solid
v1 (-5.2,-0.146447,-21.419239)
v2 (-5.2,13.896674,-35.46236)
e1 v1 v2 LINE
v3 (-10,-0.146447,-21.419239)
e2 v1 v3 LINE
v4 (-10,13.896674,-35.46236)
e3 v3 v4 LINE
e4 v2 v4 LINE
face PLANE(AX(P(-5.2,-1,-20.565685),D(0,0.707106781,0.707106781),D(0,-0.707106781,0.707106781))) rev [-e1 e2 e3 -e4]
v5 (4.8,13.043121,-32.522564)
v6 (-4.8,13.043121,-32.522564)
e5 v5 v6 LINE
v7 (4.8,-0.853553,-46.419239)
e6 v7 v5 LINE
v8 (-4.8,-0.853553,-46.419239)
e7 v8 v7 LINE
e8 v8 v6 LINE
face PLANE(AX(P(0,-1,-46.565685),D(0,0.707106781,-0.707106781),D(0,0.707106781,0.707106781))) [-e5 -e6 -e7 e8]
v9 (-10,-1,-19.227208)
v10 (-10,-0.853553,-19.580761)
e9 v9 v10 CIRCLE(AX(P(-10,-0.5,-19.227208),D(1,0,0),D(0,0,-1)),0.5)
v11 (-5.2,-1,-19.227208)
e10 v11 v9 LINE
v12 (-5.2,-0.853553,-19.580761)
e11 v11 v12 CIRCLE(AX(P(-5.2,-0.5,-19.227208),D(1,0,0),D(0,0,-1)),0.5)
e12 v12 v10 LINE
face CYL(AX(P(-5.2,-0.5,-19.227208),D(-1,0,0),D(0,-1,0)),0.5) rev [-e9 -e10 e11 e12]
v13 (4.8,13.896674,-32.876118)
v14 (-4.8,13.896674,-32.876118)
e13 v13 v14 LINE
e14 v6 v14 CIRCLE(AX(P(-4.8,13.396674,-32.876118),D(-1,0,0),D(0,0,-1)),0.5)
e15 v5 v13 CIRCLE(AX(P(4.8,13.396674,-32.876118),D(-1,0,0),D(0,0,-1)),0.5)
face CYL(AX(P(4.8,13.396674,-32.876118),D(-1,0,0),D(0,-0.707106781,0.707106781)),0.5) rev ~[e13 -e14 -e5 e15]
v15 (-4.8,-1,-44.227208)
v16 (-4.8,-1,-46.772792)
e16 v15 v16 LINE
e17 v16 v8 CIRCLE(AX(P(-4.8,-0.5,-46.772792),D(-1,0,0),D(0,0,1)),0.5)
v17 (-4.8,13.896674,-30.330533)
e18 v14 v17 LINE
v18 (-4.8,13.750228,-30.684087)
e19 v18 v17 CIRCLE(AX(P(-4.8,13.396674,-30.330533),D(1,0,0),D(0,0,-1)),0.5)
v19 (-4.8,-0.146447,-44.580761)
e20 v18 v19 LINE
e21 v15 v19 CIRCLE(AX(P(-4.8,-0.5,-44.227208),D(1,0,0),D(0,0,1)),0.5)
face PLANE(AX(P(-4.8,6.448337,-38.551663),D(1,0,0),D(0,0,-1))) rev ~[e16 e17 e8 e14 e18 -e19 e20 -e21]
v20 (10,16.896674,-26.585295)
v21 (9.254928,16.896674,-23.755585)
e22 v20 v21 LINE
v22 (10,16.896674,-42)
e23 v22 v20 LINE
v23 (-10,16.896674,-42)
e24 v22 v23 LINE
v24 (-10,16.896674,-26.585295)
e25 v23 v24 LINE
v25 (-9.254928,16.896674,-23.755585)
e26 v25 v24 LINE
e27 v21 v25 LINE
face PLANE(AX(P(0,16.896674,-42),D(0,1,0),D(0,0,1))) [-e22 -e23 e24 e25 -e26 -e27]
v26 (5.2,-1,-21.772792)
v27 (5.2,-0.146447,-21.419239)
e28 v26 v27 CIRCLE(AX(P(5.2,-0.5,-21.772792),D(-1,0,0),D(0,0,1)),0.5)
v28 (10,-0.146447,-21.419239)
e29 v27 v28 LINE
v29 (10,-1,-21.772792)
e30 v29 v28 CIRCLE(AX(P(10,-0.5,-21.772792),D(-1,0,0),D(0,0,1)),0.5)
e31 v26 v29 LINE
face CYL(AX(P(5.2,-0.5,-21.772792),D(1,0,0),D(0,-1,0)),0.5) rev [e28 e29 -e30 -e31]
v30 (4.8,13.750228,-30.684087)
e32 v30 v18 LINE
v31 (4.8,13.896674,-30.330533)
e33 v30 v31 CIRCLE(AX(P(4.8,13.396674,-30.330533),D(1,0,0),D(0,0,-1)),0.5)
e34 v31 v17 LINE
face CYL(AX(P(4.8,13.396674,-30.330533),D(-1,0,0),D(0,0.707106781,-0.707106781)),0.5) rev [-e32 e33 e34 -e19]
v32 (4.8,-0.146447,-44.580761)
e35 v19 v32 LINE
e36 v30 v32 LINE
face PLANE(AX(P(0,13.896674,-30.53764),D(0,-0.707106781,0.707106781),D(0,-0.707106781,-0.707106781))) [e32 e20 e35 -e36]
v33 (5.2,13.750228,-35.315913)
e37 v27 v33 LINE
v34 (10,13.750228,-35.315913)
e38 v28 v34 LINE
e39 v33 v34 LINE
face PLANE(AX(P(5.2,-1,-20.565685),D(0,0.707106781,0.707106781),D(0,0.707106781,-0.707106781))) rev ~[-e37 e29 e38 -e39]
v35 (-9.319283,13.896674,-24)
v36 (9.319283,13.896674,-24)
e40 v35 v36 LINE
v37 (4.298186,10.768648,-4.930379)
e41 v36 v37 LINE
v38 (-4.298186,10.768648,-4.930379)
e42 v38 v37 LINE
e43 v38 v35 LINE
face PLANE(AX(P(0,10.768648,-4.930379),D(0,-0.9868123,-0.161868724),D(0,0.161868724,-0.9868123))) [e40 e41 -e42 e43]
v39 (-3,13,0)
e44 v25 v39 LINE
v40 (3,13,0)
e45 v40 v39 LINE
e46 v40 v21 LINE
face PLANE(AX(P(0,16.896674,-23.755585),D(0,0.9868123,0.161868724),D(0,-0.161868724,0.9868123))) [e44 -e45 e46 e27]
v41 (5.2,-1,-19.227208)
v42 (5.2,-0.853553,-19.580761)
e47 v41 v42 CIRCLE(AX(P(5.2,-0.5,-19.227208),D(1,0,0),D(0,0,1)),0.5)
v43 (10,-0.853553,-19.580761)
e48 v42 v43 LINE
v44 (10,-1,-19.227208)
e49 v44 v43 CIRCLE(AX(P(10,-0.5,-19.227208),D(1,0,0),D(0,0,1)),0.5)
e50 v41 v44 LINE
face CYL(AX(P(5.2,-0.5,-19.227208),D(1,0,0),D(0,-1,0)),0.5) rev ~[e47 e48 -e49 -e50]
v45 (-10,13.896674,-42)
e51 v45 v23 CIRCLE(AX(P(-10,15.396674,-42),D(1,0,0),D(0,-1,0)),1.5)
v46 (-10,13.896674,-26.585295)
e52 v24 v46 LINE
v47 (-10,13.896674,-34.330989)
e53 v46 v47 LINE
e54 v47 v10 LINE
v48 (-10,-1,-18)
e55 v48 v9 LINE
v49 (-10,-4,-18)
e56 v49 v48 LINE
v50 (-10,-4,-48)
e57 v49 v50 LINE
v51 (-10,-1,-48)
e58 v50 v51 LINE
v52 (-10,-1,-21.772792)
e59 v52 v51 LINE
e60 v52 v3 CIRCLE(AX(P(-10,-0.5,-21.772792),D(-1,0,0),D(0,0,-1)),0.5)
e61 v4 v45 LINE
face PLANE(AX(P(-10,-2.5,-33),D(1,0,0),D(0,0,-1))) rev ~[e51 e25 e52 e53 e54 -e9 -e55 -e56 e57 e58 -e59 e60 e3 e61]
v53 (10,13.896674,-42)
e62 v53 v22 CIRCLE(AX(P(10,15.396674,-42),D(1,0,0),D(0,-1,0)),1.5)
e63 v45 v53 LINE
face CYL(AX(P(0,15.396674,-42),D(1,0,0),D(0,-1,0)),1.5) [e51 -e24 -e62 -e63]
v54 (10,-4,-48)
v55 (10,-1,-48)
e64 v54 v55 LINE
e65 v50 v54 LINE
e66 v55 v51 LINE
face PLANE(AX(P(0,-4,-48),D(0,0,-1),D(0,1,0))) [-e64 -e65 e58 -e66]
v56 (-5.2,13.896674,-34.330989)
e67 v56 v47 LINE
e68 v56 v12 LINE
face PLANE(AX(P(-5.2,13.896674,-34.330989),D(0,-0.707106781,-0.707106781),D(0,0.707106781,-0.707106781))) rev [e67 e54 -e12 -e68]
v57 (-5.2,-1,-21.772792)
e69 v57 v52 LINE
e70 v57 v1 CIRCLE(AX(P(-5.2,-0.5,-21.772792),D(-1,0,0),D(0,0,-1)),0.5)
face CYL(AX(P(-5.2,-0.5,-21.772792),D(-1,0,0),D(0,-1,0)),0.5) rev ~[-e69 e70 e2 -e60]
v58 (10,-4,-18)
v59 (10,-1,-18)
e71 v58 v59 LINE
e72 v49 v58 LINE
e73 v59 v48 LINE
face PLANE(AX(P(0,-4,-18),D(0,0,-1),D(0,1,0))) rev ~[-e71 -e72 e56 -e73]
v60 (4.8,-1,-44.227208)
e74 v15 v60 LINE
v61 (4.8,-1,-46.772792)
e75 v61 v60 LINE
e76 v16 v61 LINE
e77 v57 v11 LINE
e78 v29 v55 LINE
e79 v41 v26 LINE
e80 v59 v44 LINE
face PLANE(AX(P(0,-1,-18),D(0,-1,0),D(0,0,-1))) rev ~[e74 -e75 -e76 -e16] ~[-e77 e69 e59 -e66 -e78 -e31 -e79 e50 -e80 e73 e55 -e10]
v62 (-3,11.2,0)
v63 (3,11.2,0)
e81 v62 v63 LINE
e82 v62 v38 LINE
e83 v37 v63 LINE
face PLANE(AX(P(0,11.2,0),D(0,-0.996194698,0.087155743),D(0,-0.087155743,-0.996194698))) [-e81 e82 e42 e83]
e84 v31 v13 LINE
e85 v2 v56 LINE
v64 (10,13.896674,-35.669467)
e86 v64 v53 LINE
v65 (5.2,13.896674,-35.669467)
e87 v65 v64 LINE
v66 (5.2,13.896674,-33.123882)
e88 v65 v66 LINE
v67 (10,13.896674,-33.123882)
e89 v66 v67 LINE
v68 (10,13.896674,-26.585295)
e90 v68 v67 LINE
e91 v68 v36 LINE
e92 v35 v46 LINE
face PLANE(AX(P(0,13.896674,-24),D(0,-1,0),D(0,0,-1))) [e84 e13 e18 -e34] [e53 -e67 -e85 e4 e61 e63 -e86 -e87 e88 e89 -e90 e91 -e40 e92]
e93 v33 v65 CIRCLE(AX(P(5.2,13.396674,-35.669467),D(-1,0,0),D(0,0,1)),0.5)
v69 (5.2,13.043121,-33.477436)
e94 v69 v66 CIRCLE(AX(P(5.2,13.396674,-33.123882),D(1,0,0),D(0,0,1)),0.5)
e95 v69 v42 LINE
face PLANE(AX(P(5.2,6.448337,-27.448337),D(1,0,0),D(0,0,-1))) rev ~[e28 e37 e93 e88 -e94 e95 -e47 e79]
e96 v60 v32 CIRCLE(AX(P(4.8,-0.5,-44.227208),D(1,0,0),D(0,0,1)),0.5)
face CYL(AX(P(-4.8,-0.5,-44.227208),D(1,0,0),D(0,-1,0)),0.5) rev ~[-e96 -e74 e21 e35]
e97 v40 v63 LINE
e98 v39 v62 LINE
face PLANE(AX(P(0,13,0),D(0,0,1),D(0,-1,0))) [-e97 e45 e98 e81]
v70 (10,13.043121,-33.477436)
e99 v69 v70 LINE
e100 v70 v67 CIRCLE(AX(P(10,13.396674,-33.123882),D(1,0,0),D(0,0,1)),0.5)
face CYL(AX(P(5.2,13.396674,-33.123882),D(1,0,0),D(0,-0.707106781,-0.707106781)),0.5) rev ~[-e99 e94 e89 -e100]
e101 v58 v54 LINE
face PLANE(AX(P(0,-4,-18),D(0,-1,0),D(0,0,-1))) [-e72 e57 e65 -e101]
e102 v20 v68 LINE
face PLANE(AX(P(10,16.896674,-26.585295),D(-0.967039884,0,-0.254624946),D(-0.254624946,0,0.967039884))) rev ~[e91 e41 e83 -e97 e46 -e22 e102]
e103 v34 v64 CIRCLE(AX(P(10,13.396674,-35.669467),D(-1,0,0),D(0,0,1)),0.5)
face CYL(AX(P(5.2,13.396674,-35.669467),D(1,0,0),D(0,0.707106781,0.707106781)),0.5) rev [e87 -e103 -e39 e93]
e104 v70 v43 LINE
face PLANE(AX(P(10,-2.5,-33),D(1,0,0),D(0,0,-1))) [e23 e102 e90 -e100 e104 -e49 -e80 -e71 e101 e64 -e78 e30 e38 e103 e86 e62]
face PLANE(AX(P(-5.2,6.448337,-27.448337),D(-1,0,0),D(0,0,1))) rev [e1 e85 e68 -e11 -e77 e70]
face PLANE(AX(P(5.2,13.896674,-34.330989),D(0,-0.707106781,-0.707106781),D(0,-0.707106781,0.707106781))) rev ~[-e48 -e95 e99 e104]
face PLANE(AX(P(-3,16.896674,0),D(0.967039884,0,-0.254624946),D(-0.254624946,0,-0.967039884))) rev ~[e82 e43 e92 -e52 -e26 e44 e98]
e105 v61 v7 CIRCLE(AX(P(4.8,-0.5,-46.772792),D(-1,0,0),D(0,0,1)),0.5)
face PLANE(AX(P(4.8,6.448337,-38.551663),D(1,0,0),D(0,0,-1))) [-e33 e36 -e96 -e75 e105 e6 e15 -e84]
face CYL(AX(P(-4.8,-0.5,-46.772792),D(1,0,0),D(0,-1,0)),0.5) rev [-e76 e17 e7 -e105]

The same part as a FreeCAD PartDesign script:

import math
import FreeCAD as App
import Part
import Sketcher

V = App.Vector
Q = App.Units.Quantity


def edges_at(feature, points):
    """Names of the edges that pass closest to the given points."""
    edges = feature.Shape.Edges
    near = lambda p: min(range(len(edges)), key=lambda i: edges[i].distToShape(Part.Vertex(*p))[0])
    return sorted({f"Edge{near(p) + 1}" for p in points})

doc = App.newDocument("Part")
body = doc.addObject("PartDesign::Body", "Body")

# Sketch on YZ plane
sketch1 = body.newObject("Sketcher::SketchObject", "Sketch")
sketch1.AttachmentSupport = (doc.getObject("YZ_Plane"), [""])
sketch1.MapMode = "FlatFace"
sketch1.addGeometry(Part.LineSegment(V(13, 0, 0), V(11.2, 0, 0)), False)
sketch1.addGeometry(Part.LineSegment(V(11.2, 0, 0), V(10.8, -4.9, 0)), False)
sketch1.addGeometry(Part.LineSegment(V(10.8, -4.9, 0), V(13.9, -24, 0)), False)
sketch1.addGeometry(Part.LineSegment(V(13.9, -24, 0), V(13.9, -42, 0)), False)
sketch1.addGeometry(Part.ArcOfCircle(Part.Circle(V(15.4, -42, 0), V(0, 0, 1), 1.5), math.radians(180), math.radians(360)), False)
sketch1.addGeometry(Part.LineSegment(V(16.9, -42, 0), V(16.9, -23.8, 0)), False)
sketch1.addGeometry(Part.LineSegment(V(16.9, -23.8, 0), V(13, 0, 0)), False)
sketch1.addConstraint(Sketcher.Constraint("Coincident", 0, 2, 1, 1))
sketch1.addConstraint(Sketcher.Constraint("Coincident", 1, 2, 2, 1))
sketch1.addConstraint(Sketcher.Constraint("Coincident", 2, 2, 3, 1))
sketch1.addConstraint(Sketcher.Constraint("Tangent", 3, 2, 4, 1))
sketch1.addConstraint(Sketcher.Constraint("Tangent", 4, 2, 5, 1))
sketch1.addConstraint(Sketcher.Constraint("Coincident", 5, 2, 6, 1))
sketch1.addConstraint(Sketcher.Constraint("Coincident", 6, 2, 0, 1))
sketch1.addConstraint(Sketcher.Constraint("Horizontal", 0))
sketch1.addConstraint(Sketcher.Constraint("Vertical", 3))
sketch1.addConstraint(Sketcher.Constraint("Vertical", 5))
sketch1.addConstraint(Sketcher.Constraint("PointOnObject", 0, 2, -1))
sketch1.addConstraint(Sketcher.Constraint("Parallel", 2, 6))
sketch1.addConstraint(Sketcher.Constraint("Radius", 4, 1.5))
sketch1.addConstraint(Sketcher.Constraint("DistanceY", 3, 2, 3, 1, 18.0))
sketch1.addConstraint(Sketcher.Constraint("Angle", 1, Q("-95 deg")))
sketch1.addConstraint(Sketcher.Constraint("DistanceX", 0, 2, 0, 1, 1.8))
sketch1.addConstraint(Sketcher.Constraint("DistanceY", 4, 3, -1, 1, 42.0))
sketch1.addConstraint(Sketcher.Constraint("DistanceX", -1, 1, 6, 2, 13.0))
sketch1.addConstraint(Sketcher.Constraint("DistanceY", 5, 1, 5, 2, 18.244415))
sketch1.addConstraint(Sketcher.Constraint("DistanceY", 1, 2, -1, 1, 4.930379))
pad1 = body.newObject("PartDesign::Pad", "Pad")
pad1.Profile = sketch1
pad1.Length = 20
pad1.Midplane = True
body2 = doc.addObject("PartDesign::Body", "Body001")

# Sketch on YZ plane
sketch2 = body2.newObject("Sketcher::SketchObject", "Sketch001")
sketch2.AttachmentSupport = (doc.getObject("YZ_Plane001"), [""])
sketch2.MapMode = "FlatFace"
sketch2.addGeometry(Part.LineSegment(V(-1, -18, 0), V(-4, -18, 0)), False)
sketch2.addGeometry(Part.LineSegment(V(-4, -18, 0), V(-4, -48, 0)), False)
sketch2.addGeometry(Part.LineSegment(V(-4, -48, 0), V(-1, -48, 0)), False)
sketch2.addGeometry(Part.LineSegment(V(-1, -48, 0), V(-1, -18, 0)), False)
sketch2.addConstraint(Sketcher.Constraint("Coincident", 0, 2, 1, 1))
sketch2.addConstraint(Sketcher.Constraint("Coincident", 1, 2, 2, 1))
sketch2.addConstraint(Sketcher.Constraint("Coincident", 2, 2, 3, 1))
sketch2.addConstraint(Sketcher.Constraint("Coincident", 3, 2, 0, 1))
sketch2.addConstraint(Sketcher.Constraint("Horizontal", 0))
sketch2.addConstraint(Sketcher.Constraint("Vertical", 1))
sketch2.addConstraint(Sketcher.Constraint("Horizontal", 2))
sketch2.addConstraint(Sketcher.Constraint("Vertical", 3))
sketch2.addConstraint(Sketcher.Constraint("DistanceX", 0, 2, 0, 1, 3.0))
sketch2.addConstraint(Sketcher.Constraint("DistanceY", 1, 2, 1, 1, 30.0))
sketch2.addConstraint(Sketcher.Constraint("DistanceX", 0, 2, -1, 1, 4.0))
sketch2.addConstraint(Sketcher.Constraint("DistanceY", 0, 2, -1, 1, 18.0))
pad2 = body2.newObject("PartDesign::Pad", "Pad001")
pad2.Profile = sketch2
pad2.Length = 20
pad2.Midplane = True
body.AllowCompound = True
doc.recompute()

boolean = body.newObject("PartDesign::Boolean", "Boolean")
boolean.Type = "Fuse"
boolean.addObjects([body2])

# Sketch on YZ plane
sketch3 = body.newObject("Sketcher::SketchObject", "Sketch002")
sketch3.AttachmentSupport = (doc.getObject("YZ_Plane"), [""])
sketch3.MapMode = "FlatFace"
sketch3.addGeometry(Part.LineSegment(V(13.9, -30.5, 0), V(-1, -45.4, 0)), False)
sketch3.addGeometry(Part.LineSegment(V(-1, -45.4, 0), V(-1, -46.6, 0)), False)
sketch3.addGeometry(Part.LineSegment(V(-1, -46.6, 0), V(13.9, -31.7, 0)), False)
sketch3.addGeometry(Part.LineSegment(V(13.9, -31.7, 0), V(13.9, -30.5, 0)), False)
sketch3.addConstraint(Sketcher.Constraint("Coincident", 0, 2, 1, 1))
sketch3.addConstraint(Sketcher.Constraint("Coincident", 1, 2, 2, 1))
sketch3.addConstraint(Sketcher.Constraint("Coincident", 2, 2, 3, 1))
sketch3.addConstraint(Sketcher.Constraint("Coincident", 3, 2, 0, 1))
sketch3.addConstraint(Sketcher.Constraint("Vertical", 1))
sketch3.addConstraint(Sketcher.Constraint("Vertical", 3))
sketch3.addConstraint(Sketcher.Constraint("Parallel", 0, 2))
sketch3.addConstraint(Sketcher.Constraint("Angle", 0, Q("-135 deg")))
sketch3.addConstraint(Sketcher.Constraint("DistanceX", 0, 2, -1, 1, 1.0))
sketch3.addConstraint(Sketcher.Constraint("DistanceY", 1, 2, 1, 1, 1.131371))
sketch3.addConstraint(Sketcher.Constraint("Distance", 0, 21.067079))
sketch3.addConstraint(Sketcher.Constraint("DistanceY", 2, 2, -1, 1, 31.669011))
pad3 = body.newObject("PartDesign::Pad", "Pad002")
pad3.Profile = sketch3
pad3.Length = 9.6
pad3.Midplane = True

# Sketch on YZ plane
sketch4 = body.newObject("Sketcher::SketchObject", "Sketch003")
sketch4.AttachmentSupport = (doc.getObject("YZ_Plane"), [""])
sketch4.MapMode = "FlatFace"
sketch4.AttachmentOffset = App.Placement(V(0, 0, 5.2), App.Rotation())
sketch4.addGeometry(Part.LineSegment(V(-1, -19.4, 0), V(-1, -20.6, 0)), False)
sketch4.addGeometry(Part.LineSegment(V(-1, -20.6, 0), V(13.9, -35.5, 0)), False)
sketch4.addGeometry(Part.LineSegment(V(13.9, -35.5, 0), V(13.9, -34.3, 0)), False)
sketch4.addGeometry(Part.LineSegment(V(13.9, -34.3, 0), V(-1, -19.4, 0)), False)
sketch4.addConstraint(Sketcher.Constraint("Coincident", 0, 2, 1, 1))
sketch4.addConstraint(Sketcher.Constraint("Coincident", 1, 2, 2, 1))
sketch4.addConstraint(Sketcher.Constraint("Coincident", 2, 2, 3, 1))
sketch4.addConstraint(Sketcher.Constraint("Coincident", 3, 2, 0, 1))
sketch4.addConstraint(Sketcher.Constraint("Vertical", 0))
sketch4.addConstraint(Sketcher.Constraint("Vertical", 2))
sketch4.addConstraint(Sketcher.Constraint("Parallel", 1, 3))
sketch4.addConstraint(Sketcher.Constraint("Angle", 1, Q("-45 deg")))
sketch4.addConstraint(Sketcher.Constraint("DistanceX", 0, 2, -1, 1, 1.0))
sketch4.addConstraint(Sketcher.Constraint("DistanceY", 0, 2, 0, 1, 1.131371))
sketch4.addConstraint(Sketcher.Constraint("Distance", 1, 21.067079))
sketch4.addConstraint(Sketcher.Constraint("DistanceY", 1, 2, -1, 1, 35.46236))
pad4 = body.newObject("PartDesign::Pad", "Pad003")
pad4.Profile = sketch4
pad4.Length = 4.8
doc.recompute()

mirrored = body.newObject("PartDesign::Mirrored", "Mirrored")
mirrored.Originals = [pad4]
mirrored.MirrorPlane = (doc.getObject("YZ_Plane"), [""])
body.Tip = mirrored
doc.recompute()

fillet = body.newObject("PartDesign::Fillet", "Fillet")
fillet.Base = (mirrored, edges_at(mirrored, [
    (0, 13.897, -31.669),
    (0, 13.897, -30.538),
    (0, -1, -45.434),
    (0, -1, -46.566),
    (7.6, -1, -20.566),
    (7.6, 13.897, -35.462),
    (7.6, 13.897, -34.331),
    (7.6, -1, -19.434),
    (-7.6, -1, -20.566),
    (-7.6, -1, -19.434),
]))
fillet.Radius = 0.5

# Sketch on XZ plane
sketch5 = body.newObject("Sketcher::SketchObject", "Sketch004")
sketch5.AttachmentSupport = (doc.getObject("XZ_Plane"), [""])
sketch5.MapMode = "FlatFace"
sketch5.AttachmentOffset = App.Placement(V(0, 0, -16.896674), App.Rotation())
sketch5.addGeometry(Part.LineSegment(V(-3, 0, 0), V(-10, -27, 0)), False)
sketch5.addGeometry(Part.LineSegment(V(-10, -27, 0), V(-10, 0, 0)), False)
sketch5.addGeometry(Part.LineSegment(V(-10, 0, 0), V(-3, 0, 0)), False)
sketch5.addConstraint(Sketcher.Constraint("Coincident", 0, 2, 1, 1))
sketch5.addConstraint(Sketcher.Constraint("Coincident", 1, 2, 2, 1))
sketch5.addConstraint(Sketcher.Constraint("Coincident", 2, 2, 0, 1))
sketch5.addConstraint(Sketcher.Constraint("Vertical", 1))
sketch5.addConstraint(Sketcher.Constraint("Horizontal", 2))
sketch5.addConstraint(Sketcher.Constraint("PointOnObject", 1, 2, -1))
sketch5.addConstraint(Sketcher.Constraint("DistanceX", 2, 1, 2, 2, 7.0))
sketch5.addConstraint(Sketcher.Constraint("DistanceX", 0, 2, -1, 1, 10.0))
sketch5.addConstraint(Sketcher.Constraint("DistanceY", 1, 1, 1, 2, 26.585295))
pocket1 = body.newObject("PartDesign::Pocket", "Pocket")
pocket1.Profile = sketch5
pocket1.Length = 6.128027
pocket1.Reversed = True

# Sketch on XZ plane
sketch6 = body.newObject("Sketcher::SketchObject", "Sketch005")
sketch6.AttachmentSupport = (doc.getObject("XZ_Plane"), [""])
sketch6.MapMode = "FlatFace"
sketch6.AttachmentOffset = App.Placement(V(0, 0, -16.896674), App.Rotation())
sketch6.addGeometry(Part.LineSegment(V(3, 0, 0), V(10, 0, 0)), False)
sketch6.addGeometry(Part.LineSegment(V(10, 0, 0), V(10, -27, 0)), False)
sketch6.addGeometry(Part.LineSegment(V(10, -27, 0), V(3, 0, 0)), False)
sketch6.addConstraint(Sketcher.Constraint("Coincident", 0, 2, 1, 1))
sketch6.addConstraint(Sketcher.Constraint("Coincident", 1, 2, 2, 1))
sketch6.addConstraint(Sketcher.Constraint("Coincident", 2, 2, 0, 1))
sketch6.addConstraint(Sketcher.Constraint("Horizontal", 0))
sketch6.addConstraint(Sketcher.Constraint("Vertical", 1))
sketch6.addConstraint(Sketcher.Constraint("PointOnObject", 0, 2, -1))
sketch6.addConstraint(Sketcher.Constraint("DistanceX", 0, 1, 0, 2, 7.0))
sketch6.addConstraint(Sketcher.Constraint("DistanceX", -1, 1, 0, 2, 10.0))
sketch6.addConstraint(Sketcher.Constraint("DistanceY", 1, 2, 1, 1, 26.585295))
pocket2 = body.newObject("PartDesign::Pocket", "Pocket001")
pocket2.Profile = sketch6
pocket2.Length = 6.128027
pocket2.Reversed = True

doc.recompute()
